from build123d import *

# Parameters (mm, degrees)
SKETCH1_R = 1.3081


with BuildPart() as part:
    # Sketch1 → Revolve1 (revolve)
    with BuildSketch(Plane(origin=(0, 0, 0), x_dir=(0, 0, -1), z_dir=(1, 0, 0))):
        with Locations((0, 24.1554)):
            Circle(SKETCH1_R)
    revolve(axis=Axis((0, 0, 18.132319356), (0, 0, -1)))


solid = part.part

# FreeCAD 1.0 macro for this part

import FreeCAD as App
import Part
import Sketcher
from FreeCAD import Vector
Q = App.Units.Quantity

doc = App.newDocument("Part")
body = doc.addObject("PartDesign::Body", "Body")

# Sketch on YZ plane
sketch1 = body.newObject("Sketcher::SketchObject", "Sketch")
sketch1.AttachmentSupport = (doc.getObject("YZ_Plane"), [""])
sketch1.MapMode = "FlatFace"
sketch1.addGeometry(Part.Circle(Vector(24.2, 0, 0), Vector(0, 0, 1), 1.3), False)
sketch1.addConstraint(Sketcher.Constraint("PointOnObject", 0, 3, -1))
sketch1.addConstraint(Sketcher.Constraint("Diameter", 0, Q("0.103 in")))
sketch1.addConstraint(Sketcher.Constraint("DistanceX", -1, 1, 0, 3, Q("0.951 in")))
revolution = body.newObject("PartDesign::Revolution", "Revolution")
revolution.Profile = sketch1
revolution.ReferenceAxis = (sketch1, ["V_Axis"])
revolution.Angle = 360

doc.recompute()
